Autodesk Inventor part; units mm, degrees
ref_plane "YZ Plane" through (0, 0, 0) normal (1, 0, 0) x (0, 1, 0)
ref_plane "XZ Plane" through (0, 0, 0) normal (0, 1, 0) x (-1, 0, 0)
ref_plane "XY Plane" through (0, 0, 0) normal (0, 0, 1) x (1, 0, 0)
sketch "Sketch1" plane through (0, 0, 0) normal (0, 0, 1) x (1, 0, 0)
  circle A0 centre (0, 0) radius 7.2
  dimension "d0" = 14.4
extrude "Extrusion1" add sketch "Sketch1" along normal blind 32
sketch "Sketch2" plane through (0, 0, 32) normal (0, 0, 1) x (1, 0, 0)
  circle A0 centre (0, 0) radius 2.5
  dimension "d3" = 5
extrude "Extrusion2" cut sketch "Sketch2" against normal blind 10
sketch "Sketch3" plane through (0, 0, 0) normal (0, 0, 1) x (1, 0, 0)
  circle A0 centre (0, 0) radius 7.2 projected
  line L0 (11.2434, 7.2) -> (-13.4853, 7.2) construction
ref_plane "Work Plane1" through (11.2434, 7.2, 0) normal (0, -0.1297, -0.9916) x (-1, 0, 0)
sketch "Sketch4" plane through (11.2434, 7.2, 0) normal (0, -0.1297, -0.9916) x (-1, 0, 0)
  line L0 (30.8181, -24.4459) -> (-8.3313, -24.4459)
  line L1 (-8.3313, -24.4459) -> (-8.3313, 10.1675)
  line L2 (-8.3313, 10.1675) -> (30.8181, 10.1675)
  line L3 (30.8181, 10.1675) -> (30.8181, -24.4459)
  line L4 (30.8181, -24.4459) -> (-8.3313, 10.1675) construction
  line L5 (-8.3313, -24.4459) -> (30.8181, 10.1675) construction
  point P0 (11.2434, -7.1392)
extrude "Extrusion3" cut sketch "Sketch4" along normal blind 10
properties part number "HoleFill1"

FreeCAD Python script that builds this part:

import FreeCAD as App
import Part
import Sketcher

doc = App.newDocument("Part")
body = doc.addObject("PartDesign::Body", "Body")

# Sketch on XY plane
sketch1 = body.newObject("Sketcher::SketchObject", "Sketch")
sketch1.AttachmentSupport = (doc.getObject("XY_Plane"), [""])
sketch1.MapMode = "FlatFace"
sketch1.addGeometry(Part.Circle(App.Vector(0, 0, 0), App.Vector(0, 0, 1), 7), False)
sketch1.addConstraint(Sketcher.Constraint("Coincident", 0, 3, -1, 1))
sketch1.addConstraint(Sketcher.Constraint("Diameter", 0, 14.4))
pad1 = body.newObject("PartDesign::Pad", "Pad")
pad1.Profile = sketch1
pad1.Length = 32

# Sketch on XY plane
sketch2 = body.newObject("Sketcher::SketchObject", "Sketch001")
sketch2.AttachmentSupport = (doc.getObject("XY_Plane"), [""])
sketch2.MapMode = "FlatFace"
sketch2.AttachmentOffset = App.Placement(App.Vector(0, 0, 32), App.Rotation())
sketch2.addGeometry(Part.Circle(App.Vector(0, 0, 0), App.Vector(0, 0, 1), 2.5), False)
sketch2.addConstraint(Sketcher.Constraint("Coincident", 0, 3, -1, 1))
sketch2.addConstraint(Sketcher.Constraint("Diameter", 0, 5.0))
pocket1 = body.newObject("PartDesign::Pocket", "Pocket")
pocket1.Profile = sketch2
pocket1.Length = 10

# Sketch on an angled plane
sketch3 = body.newObject("Sketcher::SketchObject", "Sketch002")
sketch3.Placement = App.Placement(App.Vector(11.2434, 7.2, 0), App.Rotation(App.Vector(-1, 0, 0), App.Vector(0, 0.991554067, -0.129693992), App.Vector(0, -0.129693992, -0.991554067), "ZXY"))
sketch3.addGeometry(Part.LineSegment(App.Vector(-8, -24, 0), App.Vector(31, -24, 0)), False)
sketch3.addGeometry(Part.LineSegment(App.Vector(31, -24, 0), App.Vector(31, 10, 0)), False)
sketch3.addGeometry(Part.LineSegment(App.Vector(31, 10, 0), App.Vector(-8, 10, 0)), False)
sketch3.addGeometry(Part.LineSegment(App.Vector(-8, 10, 0), App.Vector(-8, -24, 0)), False)
sketch3.addConstraint(Sketcher.Constraint("Coincident", 0, 2, 1, 1))
sketch3.addConstraint(Sketcher.Constraint("Coincident", 1, 2, 2, 1))
sketch3.addConstraint(Sketcher.Constraint("Coincident", 2, 2, 3, 1))
sketch3.addConstraint(Sketcher.Constraint("Coincident", 3, 2, 0, 1))
sketch3.addConstraint(Sketcher.Constraint("Horizontal", 0))
sketch3.addConstraint(Sketcher.Constraint("Vertical", 1))
sketch3.addConstraint(Sketcher.Constraint("Horizontal", 2))
sketch3.addConstraint(Sketcher.Constraint("Vertical", 3))
sketch3.addConstraint(Sketcher.Constraint("DistanceX", 0, 1, 0, 2, 39.1494))
sketch3.addConstraint(Sketcher.Constraint("DistanceY", 1, 1, 1, 2, 34.6134))
sketch3.addConstraint(Sketcher.Constraint("DistanceX", -1, 1, 0, 2, 30.818))
sketch3.addConstraint(Sketcher.Constraint("DistanceY", 0, 2, -1, 1, 24.446))
pocket2 = body.newObject("PartDesign::Pocket", "Pocket001")
pocket2.Profile = sketch3
pocket2.Length = 10
pocket2.Reversed = True

doc.recompute()
